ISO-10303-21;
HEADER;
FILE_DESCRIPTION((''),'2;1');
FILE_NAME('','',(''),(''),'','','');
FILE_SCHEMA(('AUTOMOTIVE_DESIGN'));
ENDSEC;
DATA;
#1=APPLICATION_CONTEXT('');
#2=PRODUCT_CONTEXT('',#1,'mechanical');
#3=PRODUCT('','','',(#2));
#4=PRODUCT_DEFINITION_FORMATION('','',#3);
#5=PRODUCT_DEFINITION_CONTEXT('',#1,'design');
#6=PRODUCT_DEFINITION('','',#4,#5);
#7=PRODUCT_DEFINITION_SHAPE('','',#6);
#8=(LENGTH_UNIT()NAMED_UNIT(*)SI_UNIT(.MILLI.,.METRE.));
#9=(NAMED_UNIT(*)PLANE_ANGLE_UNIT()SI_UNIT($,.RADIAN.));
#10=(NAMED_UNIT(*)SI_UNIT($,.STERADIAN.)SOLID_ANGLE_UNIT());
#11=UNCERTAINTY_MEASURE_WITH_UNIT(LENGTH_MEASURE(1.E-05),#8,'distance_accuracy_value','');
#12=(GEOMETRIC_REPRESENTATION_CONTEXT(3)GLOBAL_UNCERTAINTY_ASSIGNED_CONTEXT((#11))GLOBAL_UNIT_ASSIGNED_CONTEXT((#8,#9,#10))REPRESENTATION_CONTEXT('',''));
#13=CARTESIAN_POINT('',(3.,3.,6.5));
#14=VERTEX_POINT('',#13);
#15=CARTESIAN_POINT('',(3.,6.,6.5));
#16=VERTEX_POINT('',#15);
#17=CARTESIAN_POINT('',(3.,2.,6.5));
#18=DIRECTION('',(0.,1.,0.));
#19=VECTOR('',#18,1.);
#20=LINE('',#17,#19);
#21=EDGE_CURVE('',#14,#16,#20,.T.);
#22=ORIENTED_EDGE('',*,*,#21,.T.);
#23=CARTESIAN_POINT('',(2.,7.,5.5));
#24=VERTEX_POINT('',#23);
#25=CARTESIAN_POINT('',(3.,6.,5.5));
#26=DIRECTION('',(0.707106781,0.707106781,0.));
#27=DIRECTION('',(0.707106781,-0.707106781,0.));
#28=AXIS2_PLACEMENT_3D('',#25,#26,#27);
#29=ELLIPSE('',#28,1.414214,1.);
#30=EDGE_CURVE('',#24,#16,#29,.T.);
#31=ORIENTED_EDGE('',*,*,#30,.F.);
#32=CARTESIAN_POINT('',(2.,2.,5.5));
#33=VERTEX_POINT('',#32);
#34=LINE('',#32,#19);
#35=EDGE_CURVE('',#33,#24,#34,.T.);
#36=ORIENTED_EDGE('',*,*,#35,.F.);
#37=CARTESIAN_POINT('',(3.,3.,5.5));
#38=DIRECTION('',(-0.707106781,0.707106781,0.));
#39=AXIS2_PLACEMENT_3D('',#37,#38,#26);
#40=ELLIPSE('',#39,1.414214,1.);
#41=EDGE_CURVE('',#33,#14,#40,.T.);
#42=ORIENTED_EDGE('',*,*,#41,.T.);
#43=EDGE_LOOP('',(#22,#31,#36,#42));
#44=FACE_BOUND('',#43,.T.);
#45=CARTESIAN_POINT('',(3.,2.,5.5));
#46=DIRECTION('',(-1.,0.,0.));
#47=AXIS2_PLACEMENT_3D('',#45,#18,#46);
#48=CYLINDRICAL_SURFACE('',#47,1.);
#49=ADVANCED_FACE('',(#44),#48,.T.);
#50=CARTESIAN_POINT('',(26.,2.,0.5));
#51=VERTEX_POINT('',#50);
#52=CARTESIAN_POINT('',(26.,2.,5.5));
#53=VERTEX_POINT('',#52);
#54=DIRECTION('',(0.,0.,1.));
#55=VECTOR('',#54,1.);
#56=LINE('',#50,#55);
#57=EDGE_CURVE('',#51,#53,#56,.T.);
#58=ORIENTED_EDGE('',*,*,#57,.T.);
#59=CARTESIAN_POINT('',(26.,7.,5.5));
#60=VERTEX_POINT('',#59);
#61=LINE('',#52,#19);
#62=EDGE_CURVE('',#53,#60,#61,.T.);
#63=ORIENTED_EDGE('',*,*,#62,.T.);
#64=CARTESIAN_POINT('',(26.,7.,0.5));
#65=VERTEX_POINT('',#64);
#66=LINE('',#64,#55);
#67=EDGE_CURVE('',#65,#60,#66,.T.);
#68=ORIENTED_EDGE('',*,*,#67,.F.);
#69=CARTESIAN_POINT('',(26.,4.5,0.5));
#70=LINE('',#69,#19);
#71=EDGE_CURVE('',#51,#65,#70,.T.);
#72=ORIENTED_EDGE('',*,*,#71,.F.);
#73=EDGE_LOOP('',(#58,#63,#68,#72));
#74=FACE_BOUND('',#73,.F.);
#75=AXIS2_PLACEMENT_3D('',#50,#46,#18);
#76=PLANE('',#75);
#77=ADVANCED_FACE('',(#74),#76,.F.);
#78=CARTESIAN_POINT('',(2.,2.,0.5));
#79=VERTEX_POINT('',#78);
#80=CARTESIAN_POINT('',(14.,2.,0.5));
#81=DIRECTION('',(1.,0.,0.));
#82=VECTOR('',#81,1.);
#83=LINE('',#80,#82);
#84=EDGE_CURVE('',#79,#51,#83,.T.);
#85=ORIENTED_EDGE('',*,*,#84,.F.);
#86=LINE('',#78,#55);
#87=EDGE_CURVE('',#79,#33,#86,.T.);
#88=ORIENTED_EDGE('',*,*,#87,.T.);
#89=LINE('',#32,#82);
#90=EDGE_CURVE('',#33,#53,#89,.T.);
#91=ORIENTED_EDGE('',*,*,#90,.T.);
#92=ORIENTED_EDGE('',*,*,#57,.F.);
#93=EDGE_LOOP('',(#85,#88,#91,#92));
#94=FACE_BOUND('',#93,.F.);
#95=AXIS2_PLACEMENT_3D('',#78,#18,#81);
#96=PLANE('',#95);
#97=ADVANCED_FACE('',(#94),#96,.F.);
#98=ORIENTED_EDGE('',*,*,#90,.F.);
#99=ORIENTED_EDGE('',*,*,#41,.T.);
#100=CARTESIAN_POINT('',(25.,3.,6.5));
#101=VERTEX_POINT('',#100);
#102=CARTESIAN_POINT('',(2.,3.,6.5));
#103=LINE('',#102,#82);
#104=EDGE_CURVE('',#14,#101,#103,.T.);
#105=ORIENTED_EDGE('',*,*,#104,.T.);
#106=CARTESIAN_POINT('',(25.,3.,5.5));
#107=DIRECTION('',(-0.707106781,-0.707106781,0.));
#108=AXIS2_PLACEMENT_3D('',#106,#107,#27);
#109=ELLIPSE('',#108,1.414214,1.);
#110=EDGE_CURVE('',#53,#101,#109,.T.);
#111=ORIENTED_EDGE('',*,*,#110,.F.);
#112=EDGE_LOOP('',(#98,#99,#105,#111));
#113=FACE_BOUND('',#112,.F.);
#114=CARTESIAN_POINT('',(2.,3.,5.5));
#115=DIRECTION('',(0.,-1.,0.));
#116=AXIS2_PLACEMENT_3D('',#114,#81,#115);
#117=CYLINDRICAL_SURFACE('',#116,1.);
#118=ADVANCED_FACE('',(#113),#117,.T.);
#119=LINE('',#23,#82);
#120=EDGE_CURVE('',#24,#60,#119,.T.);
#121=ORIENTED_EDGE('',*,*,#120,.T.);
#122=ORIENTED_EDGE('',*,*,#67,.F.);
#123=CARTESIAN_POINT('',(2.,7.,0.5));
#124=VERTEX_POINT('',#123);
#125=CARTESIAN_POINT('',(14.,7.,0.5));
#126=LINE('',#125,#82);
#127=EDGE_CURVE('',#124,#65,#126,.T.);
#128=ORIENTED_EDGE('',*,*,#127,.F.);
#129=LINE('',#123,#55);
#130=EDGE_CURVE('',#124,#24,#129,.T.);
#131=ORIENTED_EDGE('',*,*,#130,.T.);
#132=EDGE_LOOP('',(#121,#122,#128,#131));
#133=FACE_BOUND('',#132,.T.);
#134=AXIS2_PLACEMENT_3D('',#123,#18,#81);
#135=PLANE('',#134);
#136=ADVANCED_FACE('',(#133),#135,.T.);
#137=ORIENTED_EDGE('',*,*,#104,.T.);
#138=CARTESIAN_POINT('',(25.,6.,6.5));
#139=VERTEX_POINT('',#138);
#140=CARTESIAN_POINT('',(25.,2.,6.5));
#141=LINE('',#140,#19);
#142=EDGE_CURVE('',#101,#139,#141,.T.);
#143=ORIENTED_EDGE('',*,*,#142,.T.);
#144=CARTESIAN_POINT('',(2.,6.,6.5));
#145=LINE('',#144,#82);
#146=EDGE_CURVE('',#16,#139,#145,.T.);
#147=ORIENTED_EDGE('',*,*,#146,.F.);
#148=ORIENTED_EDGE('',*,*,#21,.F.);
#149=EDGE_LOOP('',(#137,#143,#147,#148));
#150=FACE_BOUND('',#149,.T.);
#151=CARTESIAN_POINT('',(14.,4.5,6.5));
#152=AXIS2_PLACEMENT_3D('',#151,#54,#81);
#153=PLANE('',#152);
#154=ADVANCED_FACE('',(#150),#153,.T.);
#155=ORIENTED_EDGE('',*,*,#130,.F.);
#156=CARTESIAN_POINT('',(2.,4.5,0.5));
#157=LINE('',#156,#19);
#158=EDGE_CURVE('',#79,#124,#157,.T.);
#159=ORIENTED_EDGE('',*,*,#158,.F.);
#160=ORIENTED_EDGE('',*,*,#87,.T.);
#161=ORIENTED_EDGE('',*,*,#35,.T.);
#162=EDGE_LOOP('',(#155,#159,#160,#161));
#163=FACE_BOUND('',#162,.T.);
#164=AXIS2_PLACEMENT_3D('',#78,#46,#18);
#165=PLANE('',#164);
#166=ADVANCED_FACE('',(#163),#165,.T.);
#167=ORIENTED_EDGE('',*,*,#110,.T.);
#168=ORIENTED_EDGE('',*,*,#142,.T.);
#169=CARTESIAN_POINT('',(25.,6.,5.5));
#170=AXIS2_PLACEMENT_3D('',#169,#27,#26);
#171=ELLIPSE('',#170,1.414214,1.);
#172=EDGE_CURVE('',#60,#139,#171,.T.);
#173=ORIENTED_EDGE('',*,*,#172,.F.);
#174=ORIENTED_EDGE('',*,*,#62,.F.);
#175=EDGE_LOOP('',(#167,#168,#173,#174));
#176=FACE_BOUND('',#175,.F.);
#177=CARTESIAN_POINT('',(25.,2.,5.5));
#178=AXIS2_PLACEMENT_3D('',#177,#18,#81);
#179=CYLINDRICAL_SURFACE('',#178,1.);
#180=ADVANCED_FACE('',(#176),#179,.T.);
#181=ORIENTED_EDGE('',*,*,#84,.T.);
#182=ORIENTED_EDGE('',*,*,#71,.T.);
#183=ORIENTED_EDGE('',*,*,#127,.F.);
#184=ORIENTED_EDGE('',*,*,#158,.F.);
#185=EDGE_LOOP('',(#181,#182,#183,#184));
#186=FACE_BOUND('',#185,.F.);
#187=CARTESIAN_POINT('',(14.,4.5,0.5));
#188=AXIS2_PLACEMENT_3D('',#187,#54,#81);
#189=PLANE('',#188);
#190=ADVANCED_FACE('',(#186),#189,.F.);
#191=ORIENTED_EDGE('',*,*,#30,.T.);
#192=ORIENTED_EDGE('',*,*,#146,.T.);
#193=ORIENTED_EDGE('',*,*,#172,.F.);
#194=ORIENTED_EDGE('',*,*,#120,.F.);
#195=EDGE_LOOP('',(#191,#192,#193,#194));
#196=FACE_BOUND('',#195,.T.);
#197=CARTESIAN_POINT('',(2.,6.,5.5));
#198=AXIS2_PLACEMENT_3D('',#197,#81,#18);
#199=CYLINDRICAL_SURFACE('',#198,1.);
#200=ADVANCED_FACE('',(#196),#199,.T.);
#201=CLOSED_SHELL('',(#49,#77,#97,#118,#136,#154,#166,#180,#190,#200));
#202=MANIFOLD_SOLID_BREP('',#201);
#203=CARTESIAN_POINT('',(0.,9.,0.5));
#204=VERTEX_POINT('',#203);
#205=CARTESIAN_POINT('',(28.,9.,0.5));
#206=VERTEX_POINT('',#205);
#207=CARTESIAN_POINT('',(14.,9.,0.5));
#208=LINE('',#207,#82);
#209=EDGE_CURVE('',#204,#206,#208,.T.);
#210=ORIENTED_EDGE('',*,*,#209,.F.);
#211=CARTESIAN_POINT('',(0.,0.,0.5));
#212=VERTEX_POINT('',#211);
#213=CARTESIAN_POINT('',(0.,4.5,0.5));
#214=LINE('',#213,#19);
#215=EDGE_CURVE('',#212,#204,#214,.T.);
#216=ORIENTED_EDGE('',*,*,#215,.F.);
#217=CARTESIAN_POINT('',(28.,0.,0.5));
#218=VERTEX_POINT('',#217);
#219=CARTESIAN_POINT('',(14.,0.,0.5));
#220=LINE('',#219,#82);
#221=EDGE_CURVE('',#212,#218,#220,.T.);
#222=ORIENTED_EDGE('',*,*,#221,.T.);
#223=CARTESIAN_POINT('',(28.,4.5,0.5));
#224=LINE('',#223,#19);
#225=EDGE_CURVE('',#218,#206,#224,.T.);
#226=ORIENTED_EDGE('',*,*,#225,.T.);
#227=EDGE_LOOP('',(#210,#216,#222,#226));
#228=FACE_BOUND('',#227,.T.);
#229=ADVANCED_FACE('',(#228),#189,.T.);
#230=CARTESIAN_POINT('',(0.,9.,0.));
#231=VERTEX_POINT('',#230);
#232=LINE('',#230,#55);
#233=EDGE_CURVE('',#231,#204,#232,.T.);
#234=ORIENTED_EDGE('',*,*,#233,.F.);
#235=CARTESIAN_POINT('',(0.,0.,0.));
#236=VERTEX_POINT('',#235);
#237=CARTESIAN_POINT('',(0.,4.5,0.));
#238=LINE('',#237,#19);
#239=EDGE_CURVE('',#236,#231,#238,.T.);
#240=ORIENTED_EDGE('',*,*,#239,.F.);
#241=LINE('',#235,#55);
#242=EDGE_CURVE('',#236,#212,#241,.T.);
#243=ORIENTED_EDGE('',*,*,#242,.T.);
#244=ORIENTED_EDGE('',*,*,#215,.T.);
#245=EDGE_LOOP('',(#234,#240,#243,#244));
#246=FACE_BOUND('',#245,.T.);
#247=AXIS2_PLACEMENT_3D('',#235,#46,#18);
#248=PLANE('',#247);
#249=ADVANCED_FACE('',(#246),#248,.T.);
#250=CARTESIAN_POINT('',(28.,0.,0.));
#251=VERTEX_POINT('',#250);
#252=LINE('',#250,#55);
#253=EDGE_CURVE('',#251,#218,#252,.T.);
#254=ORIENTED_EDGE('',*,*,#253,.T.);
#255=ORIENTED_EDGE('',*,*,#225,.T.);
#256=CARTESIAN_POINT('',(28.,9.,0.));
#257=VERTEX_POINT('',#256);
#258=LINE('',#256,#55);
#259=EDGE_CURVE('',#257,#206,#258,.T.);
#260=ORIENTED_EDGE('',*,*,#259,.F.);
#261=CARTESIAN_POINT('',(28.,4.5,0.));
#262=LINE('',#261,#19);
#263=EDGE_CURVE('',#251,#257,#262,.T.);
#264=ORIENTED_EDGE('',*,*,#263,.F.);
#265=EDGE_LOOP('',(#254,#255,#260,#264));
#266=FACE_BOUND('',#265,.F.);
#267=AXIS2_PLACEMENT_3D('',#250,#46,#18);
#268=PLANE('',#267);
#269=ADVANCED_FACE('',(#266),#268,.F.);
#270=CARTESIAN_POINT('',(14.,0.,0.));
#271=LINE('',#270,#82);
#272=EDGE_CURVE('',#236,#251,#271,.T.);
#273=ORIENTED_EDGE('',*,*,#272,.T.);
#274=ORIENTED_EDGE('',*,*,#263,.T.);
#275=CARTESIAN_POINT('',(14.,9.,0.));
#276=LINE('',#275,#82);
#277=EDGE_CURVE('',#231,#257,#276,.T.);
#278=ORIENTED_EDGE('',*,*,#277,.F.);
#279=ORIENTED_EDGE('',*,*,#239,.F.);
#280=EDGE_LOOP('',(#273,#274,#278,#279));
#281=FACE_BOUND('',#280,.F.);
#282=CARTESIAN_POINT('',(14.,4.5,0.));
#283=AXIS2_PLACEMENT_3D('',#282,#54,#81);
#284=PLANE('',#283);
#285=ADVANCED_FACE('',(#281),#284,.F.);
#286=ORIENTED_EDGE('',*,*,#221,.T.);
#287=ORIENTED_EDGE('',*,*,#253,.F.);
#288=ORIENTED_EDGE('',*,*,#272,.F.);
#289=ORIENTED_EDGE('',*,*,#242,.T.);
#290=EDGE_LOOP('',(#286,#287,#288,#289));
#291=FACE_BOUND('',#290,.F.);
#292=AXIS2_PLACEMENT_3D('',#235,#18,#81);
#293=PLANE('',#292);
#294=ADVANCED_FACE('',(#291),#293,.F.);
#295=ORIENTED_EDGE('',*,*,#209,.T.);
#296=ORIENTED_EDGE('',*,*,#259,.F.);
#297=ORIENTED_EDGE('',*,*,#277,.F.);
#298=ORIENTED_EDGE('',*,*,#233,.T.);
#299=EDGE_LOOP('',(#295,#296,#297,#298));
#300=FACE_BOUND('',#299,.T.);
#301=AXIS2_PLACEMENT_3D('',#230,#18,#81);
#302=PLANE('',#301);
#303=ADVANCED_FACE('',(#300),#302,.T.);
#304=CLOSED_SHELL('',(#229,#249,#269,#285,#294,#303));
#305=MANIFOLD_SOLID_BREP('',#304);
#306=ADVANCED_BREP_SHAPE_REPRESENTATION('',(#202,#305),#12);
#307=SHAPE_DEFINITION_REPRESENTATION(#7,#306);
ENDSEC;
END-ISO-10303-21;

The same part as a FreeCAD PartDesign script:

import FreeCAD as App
import Part
import Sketcher
from FreeCAD import Vector


def edges_at(feature, points):
    """Names of the edges that pass closest to the given points."""
    edges = feature.Shape.Edges
    near = lambda p: min(range(len(edges)), key=lambda i: edges[i].distToShape(Part.Vertex(*p))[0])
    return sorted({f"Edge{near(p) + 1}" for p in points})

doc = App.newDocument("Part")
params = doc.addObject("Spreadsheet::Sheet", "Params")
for row, (alias, value) in enumerate([
    ("sketch1_width", "28 mm"),
    ("sketch1_height", "9 mm"),
    ("pad1_length", "0.5 mm"),
    ("sketch2_width", "24 mm"),
    ("sketch2_height", "5 mm"),
    ("pad2_length", "6 mm"),
    ("fillet_radius", "1 mm"),
], start=1):
    params.set(f"A{row}", alias)
    params.set(f"B{row}", "=" + value)
    params.setAlias(f"B{row}", alias)

body = doc.addObject("PartDesign::Body", "Body")

sketch1 = doc.addObject("Sketcher::SketchObject", "Sketch")
body.addObject(sketch1)
sketch1.AttachmentSupport = (doc.XY_Plane, [""])
sketch1.MapMode = "FlatFace"
sketch1.addGeometry(Part.LineSegment(Vector(0, 9, 0), Vector(0, 0, 0)), False)
sketch1.addGeometry(Part.LineSegment(Vector(0, 0, 0), Vector(28, 0, 0)), False)
sketch1.addGeometry(Part.LineSegment(Vector(28, 0, 0), Vector(28, 9, 0)), False)
sketch1.addGeometry(Part.LineSegment(Vector(28, 9, 0), Vector(0, 9, 0)), False)
sketch1.addConstraint(Sketcher.Constraint("Coincident", 0, 2, 1, 1))
sketch1.addConstraint(Sketcher.Constraint("Coincident", 1, 2, 2, 1))
sketch1.addConstraint(Sketcher.Constraint("Coincident", 2, 2, 3, 1))
sketch1.addConstraint(Sketcher.Constraint("Coincident", 3, 2, 0, 1))
sketch1.addConstraint(Sketcher.Constraint("Vertical", 0))
sketch1.addConstraint(Sketcher.Constraint("Horizontal", 1))
sketch1.addConstraint(Sketcher.Constraint("Vertical", 2))
sketch1.addConstraint(Sketcher.Constraint("Horizontal", 3))
sketch1.addConstraint(Sketcher.Constraint("Coincident", 0, 2, -1, 1))
sketch1.addConstraint(Sketcher.Constraint("DistanceX", 1, 1, 1, 2, 28.0))
sketch1.addConstraint(Sketcher.Constraint("DistanceY", 0, 2, 0, 1, 9.0))
sketch1.setExpression("Constraints[9]", "Params.sketch1_width")
sketch1.setExpression("Constraints[10]", "Params.sketch1_height")
pad1 = doc.addObject("PartDesign::Pad", "Pad")
body.addObject(pad1)
pad1.Profile = sketch1
pad1.setExpression("Length", "Params.pad1_length")
body2 = doc.addObject("PartDesign::Body", "Body001")

sketch2 = doc.addObject("Sketcher::SketchObject", "Sketch001")
body2.addObject(sketch2)
sketch2.AttachmentSupport = (doc.getObject("XY_Plane001"), [""])
sketch2.MapMode = "FlatFace"
sketch2.AttachmentOffset = App.Placement(Vector(0, 0, 0.5), App.Rotation())
sketch2.addGeometry(Part.LineSegment(Vector(2, 7, 0), Vector(2, 2, 0)), False)
sketch2.addGeometry(Part.LineSegment(Vector(2, 2, 0), Vector(26, 2, 0)), False)
sketch2.addGeometry(Part.LineSegment(Vector(26, 2, 0), Vector(26, 7, 0)), False)
sketch2.addGeometry(Part.LineSegment(Vector(26, 7, 0), Vector(2, 7, 0)), False)
sketch2.addConstraint(Sketcher.Constraint("Coincident", 0, 2, 1, 1))
sketch2.addConstraint(Sketcher.Constraint("Coincident", 1, 2, 2, 1))
sketch2.addConstraint(Sketcher.Constraint("Coincident", 2, 2, 3, 1))
sketch2.addConstraint(Sketcher.Constraint("Coincident", 3, 2, 0, 1))
sketch2.addConstraint(Sketcher.Constraint("Vertical", 0))
sketch2.addConstraint(Sketcher.Constraint("Horizontal", 1))
sketch2.addConstraint(Sketcher.Constraint("Vertical", 2))
sketch2.addConstraint(Sketcher.Constraint("Horizontal", 3))
sketch2.addConstraint(Sketcher.Constraint("DistanceX", 1, 1, 1, 2, 24.0))
sketch2.addConstraint(Sketcher.Constraint("DistanceY", 0, 2, 0, 1, 5.0))
sketch2.addConstraint(Sketcher.Constraint("DistanceX", -1, 1, 0, 2, 2.0))
sketch2.addConstraint(Sketcher.Constraint("DistanceY", -1, 1, 0, 2, 2.0))
sketch2.setExpression("Constraints[8]", "Params.sketch2_width")
sketch2.setExpression("Constraints[9]", "Params.sketch2_height")
pad2 = doc.addObject("PartDesign::Pad", "Pad001")
body2.addObject(pad2)
pad2.Profile = sketch2
pad2.setExpression("Length", "Params.pad2_length")
doc.recompute()

fillet = doc.addObject("PartDesign::Fillet", "Fillet")
body2.addObject(fillet)
fillet.Base = (pad2, edges_at(pad2, [
    (14, 2, 6.5),
    (26, 4.5, 6.5),
    (14, 7, 6.5),
    (2, 4.5, 6.5),
]))
fillet.setExpression("Radius", "Params.fillet_radius")

doc.recompute()
